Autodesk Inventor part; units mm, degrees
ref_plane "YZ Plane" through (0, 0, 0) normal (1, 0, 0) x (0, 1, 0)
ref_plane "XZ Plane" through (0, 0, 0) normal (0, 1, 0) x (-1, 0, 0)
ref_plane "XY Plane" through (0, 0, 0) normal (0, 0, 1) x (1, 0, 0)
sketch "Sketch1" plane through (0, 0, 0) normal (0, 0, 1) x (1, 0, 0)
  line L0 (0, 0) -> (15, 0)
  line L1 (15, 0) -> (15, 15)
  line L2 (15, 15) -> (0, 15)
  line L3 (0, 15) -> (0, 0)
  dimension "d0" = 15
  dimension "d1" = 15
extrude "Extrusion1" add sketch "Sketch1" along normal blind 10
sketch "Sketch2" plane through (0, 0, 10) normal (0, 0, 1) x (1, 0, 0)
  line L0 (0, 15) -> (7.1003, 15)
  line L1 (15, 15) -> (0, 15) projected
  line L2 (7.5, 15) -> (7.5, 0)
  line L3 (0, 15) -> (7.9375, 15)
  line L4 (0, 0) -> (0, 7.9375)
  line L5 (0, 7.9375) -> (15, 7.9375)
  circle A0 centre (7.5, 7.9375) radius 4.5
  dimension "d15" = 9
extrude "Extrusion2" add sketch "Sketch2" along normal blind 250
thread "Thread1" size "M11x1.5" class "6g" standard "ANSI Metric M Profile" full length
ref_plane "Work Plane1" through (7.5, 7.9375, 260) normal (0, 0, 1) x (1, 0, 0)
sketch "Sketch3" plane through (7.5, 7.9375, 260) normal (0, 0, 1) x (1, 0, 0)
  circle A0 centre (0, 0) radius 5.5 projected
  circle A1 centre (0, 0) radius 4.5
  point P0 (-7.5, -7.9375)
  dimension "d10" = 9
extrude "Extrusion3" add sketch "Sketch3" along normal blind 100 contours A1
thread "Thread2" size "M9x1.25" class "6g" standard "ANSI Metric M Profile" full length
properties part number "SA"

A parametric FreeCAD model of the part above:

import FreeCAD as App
import Part
import Sketcher
from FreeCAD import Vector


def add_polygon(sketch, points):
    """Adds a closed chain of lines whose ends are joined by coincident constraints."""
    first, n = sketch.GeometryCount, len(points)
    for a, b in zip(points, points[1:] + points[:1]):
        sketch.addGeometry(Part.LineSegment(App.Vector(*a, 0), App.Vector(*b, 0)), False)
    for i in range(n):
        sketch.addConstraint(Sketcher.Constraint("Coincident", first + i, 2, first + (i + 1) % n, 1))

doc = App.newDocument("Part")
params = doc.addObject("Spreadsheet::Sheet", "Params")
for row, (alias, value) in enumerate([
    ("sketch1_width", "15 mm"),
    ("pad1_length", "10 mm"),
    ("sketch2_diameter", "9 mm"),
    ("pad2_length", "250 mm"),
    ("sketch3_diameter", "9 mm"),
    ("pad3_length", "100 mm"),
], start=1):
    params.set(f"A{row}", alias)
    params.set(f"B{row}", "=" + value)
    params.setAlias(f"B{row}", alias)

body = doc.addObject("PartDesign::Body", "Body")

# Sketch on XY plane
sketch1 = body.newObject("Sketcher::SketchObject", "Sketch")
sketch1.AttachmentSupport = (doc.getObject("XY_Plane"), [""])
sketch1.MapMode = "FlatFace"
add_polygon(sketch1, [(0, 15), (0, 0), (15, 0), (15, 15)])  # lines 0-3
sketch1.addConstraint(Sketcher.Constraint("Vertical", 0))
sketch1.addConstraint(Sketcher.Constraint("Horizontal", 1))
sketch1.addConstraint(Sketcher.Constraint("Vertical", 2))
sketch1.addConstraint(Sketcher.Constraint("Horizontal", 3))
sketch1.addConstraint(Sketcher.Constraint("Coincident", 0, 2, -1, 1))
sketch1.addConstraint(Sketcher.Constraint("Equal", 3, 0))
sketch1.addConstraint(Sketcher.Constraint("DistanceX", 1, 1, 1, 2, 15.0))
sketch1.setExpression("Constraints[10]", "Params.sketch1_width")
pad1 = body.newObject("PartDesign::Pad", "Pad")
pad1.Profile = sketch1
pad1.setExpression("Length", "Params.pad1_length")

# Sketch on XY plane
sketch2 = body.newObject("Sketcher::SketchObject", "Sketch001")
sketch2.AttachmentSupport = (doc.getObject("XY_Plane"), [""])
sketch2.MapMode = "FlatFace"
sketch2.AttachmentOffset = App.Placement(Vector(0, 0, 10), App.Rotation())
sketch2.addGeometry(Part.Circle(Vector(7.5, 7.9, 0), Vector(0, 0, 1), 4.5), False)
sketch2.addConstraint(Sketcher.Constraint("Diameter", 0, 9.0))
sketch2.addConstraint(Sketcher.Constraint("DistanceX", -1, 1, 0, 3, 7.5))
sketch2.addConstraint(Sketcher.Constraint("DistanceY", -1, 1, 0, 3, 7.9375))
sketch2.setExpression("Constraints[0]", "Params.sketch2_diameter")
pad2 = body.newObject("PartDesign::Pad", "Pad001")
pad2.Profile = sketch2
pad2.setExpression("Length", "Params.pad2_length")

# Sketch on XY plane
sketch3 = body.newObject("Sketcher::SketchObject", "Sketch002")
sketch3.AttachmentSupport = (doc.getObject("XY_Plane"), [""])
sketch3.MapMode = "FlatFace"
sketch3.AttachmentOffset = App.Placement(Vector(0, 0, 260), App.Rotation())
sketch3.addGeometry(Part.Circle(Vector(7.5, 7.9, 0), Vector(0, 0, 1), 4.5), False)
sketch3.addConstraint(Sketcher.Constraint("Diameter", 0, 9.0))
sketch3.addConstraint(Sketcher.Constraint("DistanceX", -1, 1, 0, 3, 7.5))
sketch3.addConstraint(Sketcher.Constraint("DistanceY", -1, 1, 0, 3, 7.9375))
sketch3.setExpression("Constraints[0]", "Params.sketch3_diameter")
pad3 = body.newObject("PartDesign::Pad", "Pad002")
pad3.Profile = sketch3
pad3.setExpression("Length", "Params.pad3_length")

doc.recompute()
